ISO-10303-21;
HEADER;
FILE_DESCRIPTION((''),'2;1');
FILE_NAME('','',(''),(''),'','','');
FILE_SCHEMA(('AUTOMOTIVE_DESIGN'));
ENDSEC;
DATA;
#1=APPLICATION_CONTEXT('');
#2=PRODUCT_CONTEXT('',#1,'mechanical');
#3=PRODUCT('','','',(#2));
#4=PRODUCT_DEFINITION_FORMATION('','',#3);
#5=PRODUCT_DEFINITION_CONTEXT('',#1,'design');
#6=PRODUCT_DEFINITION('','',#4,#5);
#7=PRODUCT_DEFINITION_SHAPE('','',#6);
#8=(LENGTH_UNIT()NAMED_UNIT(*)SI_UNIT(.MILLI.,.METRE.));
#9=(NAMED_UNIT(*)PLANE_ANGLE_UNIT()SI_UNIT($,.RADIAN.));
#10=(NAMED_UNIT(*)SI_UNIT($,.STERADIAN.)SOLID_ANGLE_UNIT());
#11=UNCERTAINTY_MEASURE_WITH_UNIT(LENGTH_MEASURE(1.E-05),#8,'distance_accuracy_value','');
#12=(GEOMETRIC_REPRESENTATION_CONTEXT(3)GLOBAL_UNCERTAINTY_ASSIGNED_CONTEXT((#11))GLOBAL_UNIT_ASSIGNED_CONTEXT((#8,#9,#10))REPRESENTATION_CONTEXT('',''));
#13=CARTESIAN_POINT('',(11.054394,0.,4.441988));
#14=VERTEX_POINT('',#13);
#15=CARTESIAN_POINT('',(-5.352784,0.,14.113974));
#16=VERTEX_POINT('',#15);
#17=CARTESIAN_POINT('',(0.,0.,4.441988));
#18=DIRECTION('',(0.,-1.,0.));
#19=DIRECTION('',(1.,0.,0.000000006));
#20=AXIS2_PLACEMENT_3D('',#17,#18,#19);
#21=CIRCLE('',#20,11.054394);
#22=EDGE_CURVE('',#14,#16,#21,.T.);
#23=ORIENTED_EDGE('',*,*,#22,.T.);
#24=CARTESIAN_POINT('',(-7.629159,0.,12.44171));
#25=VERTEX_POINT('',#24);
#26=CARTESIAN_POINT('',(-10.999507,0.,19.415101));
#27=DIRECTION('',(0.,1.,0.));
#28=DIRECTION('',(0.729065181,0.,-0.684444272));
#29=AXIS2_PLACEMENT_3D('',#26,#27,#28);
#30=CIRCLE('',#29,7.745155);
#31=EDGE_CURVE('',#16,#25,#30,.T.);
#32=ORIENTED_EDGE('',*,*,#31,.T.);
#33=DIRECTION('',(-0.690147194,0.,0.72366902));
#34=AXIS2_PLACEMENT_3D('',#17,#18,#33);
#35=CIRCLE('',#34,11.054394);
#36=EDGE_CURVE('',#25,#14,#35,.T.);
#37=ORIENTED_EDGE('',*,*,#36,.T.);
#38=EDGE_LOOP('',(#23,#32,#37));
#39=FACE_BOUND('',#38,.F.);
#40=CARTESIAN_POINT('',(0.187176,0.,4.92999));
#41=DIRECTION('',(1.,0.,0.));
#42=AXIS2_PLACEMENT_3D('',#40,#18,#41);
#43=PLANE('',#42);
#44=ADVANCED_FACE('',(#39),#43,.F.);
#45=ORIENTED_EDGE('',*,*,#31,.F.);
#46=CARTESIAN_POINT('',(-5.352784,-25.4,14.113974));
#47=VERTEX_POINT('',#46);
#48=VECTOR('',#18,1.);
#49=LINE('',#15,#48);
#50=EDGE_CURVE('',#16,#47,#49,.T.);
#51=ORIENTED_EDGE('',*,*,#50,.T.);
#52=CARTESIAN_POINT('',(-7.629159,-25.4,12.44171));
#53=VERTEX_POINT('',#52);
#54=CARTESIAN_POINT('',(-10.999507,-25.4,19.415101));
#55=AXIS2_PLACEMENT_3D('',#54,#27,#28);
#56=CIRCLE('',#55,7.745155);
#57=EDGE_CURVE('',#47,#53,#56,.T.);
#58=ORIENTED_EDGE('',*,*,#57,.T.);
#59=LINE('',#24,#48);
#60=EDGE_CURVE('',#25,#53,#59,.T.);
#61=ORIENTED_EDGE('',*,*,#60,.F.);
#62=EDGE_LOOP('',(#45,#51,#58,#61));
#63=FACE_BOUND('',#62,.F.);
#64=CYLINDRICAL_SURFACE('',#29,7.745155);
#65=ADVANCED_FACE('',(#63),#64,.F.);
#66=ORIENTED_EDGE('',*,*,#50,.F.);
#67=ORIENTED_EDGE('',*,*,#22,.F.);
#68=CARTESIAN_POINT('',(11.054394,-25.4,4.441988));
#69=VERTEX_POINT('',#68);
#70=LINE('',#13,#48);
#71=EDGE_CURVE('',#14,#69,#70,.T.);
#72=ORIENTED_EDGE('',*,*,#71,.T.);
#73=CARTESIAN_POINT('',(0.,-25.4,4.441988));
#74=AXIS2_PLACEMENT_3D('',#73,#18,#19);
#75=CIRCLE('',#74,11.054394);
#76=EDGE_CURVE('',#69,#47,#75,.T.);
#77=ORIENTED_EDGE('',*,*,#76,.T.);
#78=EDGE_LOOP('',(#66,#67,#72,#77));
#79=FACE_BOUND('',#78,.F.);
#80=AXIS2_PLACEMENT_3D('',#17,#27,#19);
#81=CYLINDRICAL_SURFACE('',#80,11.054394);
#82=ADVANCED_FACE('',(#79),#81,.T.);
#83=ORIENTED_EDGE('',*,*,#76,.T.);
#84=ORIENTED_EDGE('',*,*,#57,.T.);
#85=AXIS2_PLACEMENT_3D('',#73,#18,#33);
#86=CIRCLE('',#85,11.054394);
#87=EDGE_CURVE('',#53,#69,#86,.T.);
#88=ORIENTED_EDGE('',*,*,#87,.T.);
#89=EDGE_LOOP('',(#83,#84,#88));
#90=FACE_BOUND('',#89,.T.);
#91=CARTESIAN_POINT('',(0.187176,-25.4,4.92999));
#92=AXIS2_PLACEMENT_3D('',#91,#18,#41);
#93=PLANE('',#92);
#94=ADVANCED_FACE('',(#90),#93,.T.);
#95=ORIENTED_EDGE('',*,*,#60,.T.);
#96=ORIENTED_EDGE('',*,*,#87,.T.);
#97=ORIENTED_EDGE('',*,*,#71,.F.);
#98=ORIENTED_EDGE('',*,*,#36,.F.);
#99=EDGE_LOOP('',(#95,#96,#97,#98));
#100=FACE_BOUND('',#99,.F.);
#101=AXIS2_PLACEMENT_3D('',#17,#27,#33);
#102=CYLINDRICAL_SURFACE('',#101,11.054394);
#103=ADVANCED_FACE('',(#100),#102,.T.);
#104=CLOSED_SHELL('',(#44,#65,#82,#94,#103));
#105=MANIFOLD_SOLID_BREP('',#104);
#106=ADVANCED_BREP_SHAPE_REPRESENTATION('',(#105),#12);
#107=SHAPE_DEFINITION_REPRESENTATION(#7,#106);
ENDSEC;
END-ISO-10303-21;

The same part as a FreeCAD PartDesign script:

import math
import FreeCAD as App
import Part
import Sketcher

V = App.Vector

doc = App.newDocument("Part")
params = doc.addObject("Spreadsheet::Sheet", "Params")
for row, (alias, value) in enumerate([
    ("pad1_length", "1 in"),
], start=1):
    params.set(f"A{row}", alias)
    params.set(f"B{row}", "=" + value)
    params.setAlias(f"B{row}", alias)

body = doc.addObject("PartDesign::Body", "Body")

sketch1 = body.newObject("Sketcher::SketchObject", "Sketch")
sketch1.AttachmentSupport = (doc.getObject("XZ_Plane"), [""])
sketch1.MapMode = "FlatFace"
sketch1.addGeometry([
    Part.ArcOfCircle(Part.Circle(V(0, 4.4, 0), V(0, 0, 1), 11.1), math.radians(134), math.radians(360)),
    Part.ArcOfCircle(Part.Circle(V(0, 4.4, 0), V(0, 0, 1), 11.1), math.radians(0), math.radians(119)),
    Part.ArcOfCircle(Part.Circle(V(-11, 19.4, 0), V(0, 0, 1), 7.7), math.radians(-64), math.radians(-43)),
], False)
sketch1.addConstraint([
    Sketcher.Constraint("Tangent", 0, 2, 1, 1),
    Sketcher.Constraint("Coincident", 1, 2, 2, 2),
    Sketcher.Constraint("Coincident", 2, 1, 0, 1),
    Sketcher.Constraint("Equal", 0, 1),
    Sketcher.Constraint("PointOnObject", 0, 3, -2),
    Sketcher.Constraint("Horizontal", 1, 3, 0, 2),
    Sketcher.Constraint("Radius", 0, 11.054394),
    Sketcher.Constraint("Radius", 2, 7.745155),
    Sketcher.Constraint("DistanceY", -1, 1, 2, 3, 19.415101),
    Sketcher.Constraint("DistanceX", 2, 3, 0, 2, 22.053901),
    Sketcher.Constraint("DistanceY", -1, 1, 0, 2, 4.441988),
])
pad1 = body.newObject("PartDesign::Pad", "Pad")
pad1.Profile = sketch1
pad1.setExpression("Length", "Params.pad1_length")

doc.recompute()
